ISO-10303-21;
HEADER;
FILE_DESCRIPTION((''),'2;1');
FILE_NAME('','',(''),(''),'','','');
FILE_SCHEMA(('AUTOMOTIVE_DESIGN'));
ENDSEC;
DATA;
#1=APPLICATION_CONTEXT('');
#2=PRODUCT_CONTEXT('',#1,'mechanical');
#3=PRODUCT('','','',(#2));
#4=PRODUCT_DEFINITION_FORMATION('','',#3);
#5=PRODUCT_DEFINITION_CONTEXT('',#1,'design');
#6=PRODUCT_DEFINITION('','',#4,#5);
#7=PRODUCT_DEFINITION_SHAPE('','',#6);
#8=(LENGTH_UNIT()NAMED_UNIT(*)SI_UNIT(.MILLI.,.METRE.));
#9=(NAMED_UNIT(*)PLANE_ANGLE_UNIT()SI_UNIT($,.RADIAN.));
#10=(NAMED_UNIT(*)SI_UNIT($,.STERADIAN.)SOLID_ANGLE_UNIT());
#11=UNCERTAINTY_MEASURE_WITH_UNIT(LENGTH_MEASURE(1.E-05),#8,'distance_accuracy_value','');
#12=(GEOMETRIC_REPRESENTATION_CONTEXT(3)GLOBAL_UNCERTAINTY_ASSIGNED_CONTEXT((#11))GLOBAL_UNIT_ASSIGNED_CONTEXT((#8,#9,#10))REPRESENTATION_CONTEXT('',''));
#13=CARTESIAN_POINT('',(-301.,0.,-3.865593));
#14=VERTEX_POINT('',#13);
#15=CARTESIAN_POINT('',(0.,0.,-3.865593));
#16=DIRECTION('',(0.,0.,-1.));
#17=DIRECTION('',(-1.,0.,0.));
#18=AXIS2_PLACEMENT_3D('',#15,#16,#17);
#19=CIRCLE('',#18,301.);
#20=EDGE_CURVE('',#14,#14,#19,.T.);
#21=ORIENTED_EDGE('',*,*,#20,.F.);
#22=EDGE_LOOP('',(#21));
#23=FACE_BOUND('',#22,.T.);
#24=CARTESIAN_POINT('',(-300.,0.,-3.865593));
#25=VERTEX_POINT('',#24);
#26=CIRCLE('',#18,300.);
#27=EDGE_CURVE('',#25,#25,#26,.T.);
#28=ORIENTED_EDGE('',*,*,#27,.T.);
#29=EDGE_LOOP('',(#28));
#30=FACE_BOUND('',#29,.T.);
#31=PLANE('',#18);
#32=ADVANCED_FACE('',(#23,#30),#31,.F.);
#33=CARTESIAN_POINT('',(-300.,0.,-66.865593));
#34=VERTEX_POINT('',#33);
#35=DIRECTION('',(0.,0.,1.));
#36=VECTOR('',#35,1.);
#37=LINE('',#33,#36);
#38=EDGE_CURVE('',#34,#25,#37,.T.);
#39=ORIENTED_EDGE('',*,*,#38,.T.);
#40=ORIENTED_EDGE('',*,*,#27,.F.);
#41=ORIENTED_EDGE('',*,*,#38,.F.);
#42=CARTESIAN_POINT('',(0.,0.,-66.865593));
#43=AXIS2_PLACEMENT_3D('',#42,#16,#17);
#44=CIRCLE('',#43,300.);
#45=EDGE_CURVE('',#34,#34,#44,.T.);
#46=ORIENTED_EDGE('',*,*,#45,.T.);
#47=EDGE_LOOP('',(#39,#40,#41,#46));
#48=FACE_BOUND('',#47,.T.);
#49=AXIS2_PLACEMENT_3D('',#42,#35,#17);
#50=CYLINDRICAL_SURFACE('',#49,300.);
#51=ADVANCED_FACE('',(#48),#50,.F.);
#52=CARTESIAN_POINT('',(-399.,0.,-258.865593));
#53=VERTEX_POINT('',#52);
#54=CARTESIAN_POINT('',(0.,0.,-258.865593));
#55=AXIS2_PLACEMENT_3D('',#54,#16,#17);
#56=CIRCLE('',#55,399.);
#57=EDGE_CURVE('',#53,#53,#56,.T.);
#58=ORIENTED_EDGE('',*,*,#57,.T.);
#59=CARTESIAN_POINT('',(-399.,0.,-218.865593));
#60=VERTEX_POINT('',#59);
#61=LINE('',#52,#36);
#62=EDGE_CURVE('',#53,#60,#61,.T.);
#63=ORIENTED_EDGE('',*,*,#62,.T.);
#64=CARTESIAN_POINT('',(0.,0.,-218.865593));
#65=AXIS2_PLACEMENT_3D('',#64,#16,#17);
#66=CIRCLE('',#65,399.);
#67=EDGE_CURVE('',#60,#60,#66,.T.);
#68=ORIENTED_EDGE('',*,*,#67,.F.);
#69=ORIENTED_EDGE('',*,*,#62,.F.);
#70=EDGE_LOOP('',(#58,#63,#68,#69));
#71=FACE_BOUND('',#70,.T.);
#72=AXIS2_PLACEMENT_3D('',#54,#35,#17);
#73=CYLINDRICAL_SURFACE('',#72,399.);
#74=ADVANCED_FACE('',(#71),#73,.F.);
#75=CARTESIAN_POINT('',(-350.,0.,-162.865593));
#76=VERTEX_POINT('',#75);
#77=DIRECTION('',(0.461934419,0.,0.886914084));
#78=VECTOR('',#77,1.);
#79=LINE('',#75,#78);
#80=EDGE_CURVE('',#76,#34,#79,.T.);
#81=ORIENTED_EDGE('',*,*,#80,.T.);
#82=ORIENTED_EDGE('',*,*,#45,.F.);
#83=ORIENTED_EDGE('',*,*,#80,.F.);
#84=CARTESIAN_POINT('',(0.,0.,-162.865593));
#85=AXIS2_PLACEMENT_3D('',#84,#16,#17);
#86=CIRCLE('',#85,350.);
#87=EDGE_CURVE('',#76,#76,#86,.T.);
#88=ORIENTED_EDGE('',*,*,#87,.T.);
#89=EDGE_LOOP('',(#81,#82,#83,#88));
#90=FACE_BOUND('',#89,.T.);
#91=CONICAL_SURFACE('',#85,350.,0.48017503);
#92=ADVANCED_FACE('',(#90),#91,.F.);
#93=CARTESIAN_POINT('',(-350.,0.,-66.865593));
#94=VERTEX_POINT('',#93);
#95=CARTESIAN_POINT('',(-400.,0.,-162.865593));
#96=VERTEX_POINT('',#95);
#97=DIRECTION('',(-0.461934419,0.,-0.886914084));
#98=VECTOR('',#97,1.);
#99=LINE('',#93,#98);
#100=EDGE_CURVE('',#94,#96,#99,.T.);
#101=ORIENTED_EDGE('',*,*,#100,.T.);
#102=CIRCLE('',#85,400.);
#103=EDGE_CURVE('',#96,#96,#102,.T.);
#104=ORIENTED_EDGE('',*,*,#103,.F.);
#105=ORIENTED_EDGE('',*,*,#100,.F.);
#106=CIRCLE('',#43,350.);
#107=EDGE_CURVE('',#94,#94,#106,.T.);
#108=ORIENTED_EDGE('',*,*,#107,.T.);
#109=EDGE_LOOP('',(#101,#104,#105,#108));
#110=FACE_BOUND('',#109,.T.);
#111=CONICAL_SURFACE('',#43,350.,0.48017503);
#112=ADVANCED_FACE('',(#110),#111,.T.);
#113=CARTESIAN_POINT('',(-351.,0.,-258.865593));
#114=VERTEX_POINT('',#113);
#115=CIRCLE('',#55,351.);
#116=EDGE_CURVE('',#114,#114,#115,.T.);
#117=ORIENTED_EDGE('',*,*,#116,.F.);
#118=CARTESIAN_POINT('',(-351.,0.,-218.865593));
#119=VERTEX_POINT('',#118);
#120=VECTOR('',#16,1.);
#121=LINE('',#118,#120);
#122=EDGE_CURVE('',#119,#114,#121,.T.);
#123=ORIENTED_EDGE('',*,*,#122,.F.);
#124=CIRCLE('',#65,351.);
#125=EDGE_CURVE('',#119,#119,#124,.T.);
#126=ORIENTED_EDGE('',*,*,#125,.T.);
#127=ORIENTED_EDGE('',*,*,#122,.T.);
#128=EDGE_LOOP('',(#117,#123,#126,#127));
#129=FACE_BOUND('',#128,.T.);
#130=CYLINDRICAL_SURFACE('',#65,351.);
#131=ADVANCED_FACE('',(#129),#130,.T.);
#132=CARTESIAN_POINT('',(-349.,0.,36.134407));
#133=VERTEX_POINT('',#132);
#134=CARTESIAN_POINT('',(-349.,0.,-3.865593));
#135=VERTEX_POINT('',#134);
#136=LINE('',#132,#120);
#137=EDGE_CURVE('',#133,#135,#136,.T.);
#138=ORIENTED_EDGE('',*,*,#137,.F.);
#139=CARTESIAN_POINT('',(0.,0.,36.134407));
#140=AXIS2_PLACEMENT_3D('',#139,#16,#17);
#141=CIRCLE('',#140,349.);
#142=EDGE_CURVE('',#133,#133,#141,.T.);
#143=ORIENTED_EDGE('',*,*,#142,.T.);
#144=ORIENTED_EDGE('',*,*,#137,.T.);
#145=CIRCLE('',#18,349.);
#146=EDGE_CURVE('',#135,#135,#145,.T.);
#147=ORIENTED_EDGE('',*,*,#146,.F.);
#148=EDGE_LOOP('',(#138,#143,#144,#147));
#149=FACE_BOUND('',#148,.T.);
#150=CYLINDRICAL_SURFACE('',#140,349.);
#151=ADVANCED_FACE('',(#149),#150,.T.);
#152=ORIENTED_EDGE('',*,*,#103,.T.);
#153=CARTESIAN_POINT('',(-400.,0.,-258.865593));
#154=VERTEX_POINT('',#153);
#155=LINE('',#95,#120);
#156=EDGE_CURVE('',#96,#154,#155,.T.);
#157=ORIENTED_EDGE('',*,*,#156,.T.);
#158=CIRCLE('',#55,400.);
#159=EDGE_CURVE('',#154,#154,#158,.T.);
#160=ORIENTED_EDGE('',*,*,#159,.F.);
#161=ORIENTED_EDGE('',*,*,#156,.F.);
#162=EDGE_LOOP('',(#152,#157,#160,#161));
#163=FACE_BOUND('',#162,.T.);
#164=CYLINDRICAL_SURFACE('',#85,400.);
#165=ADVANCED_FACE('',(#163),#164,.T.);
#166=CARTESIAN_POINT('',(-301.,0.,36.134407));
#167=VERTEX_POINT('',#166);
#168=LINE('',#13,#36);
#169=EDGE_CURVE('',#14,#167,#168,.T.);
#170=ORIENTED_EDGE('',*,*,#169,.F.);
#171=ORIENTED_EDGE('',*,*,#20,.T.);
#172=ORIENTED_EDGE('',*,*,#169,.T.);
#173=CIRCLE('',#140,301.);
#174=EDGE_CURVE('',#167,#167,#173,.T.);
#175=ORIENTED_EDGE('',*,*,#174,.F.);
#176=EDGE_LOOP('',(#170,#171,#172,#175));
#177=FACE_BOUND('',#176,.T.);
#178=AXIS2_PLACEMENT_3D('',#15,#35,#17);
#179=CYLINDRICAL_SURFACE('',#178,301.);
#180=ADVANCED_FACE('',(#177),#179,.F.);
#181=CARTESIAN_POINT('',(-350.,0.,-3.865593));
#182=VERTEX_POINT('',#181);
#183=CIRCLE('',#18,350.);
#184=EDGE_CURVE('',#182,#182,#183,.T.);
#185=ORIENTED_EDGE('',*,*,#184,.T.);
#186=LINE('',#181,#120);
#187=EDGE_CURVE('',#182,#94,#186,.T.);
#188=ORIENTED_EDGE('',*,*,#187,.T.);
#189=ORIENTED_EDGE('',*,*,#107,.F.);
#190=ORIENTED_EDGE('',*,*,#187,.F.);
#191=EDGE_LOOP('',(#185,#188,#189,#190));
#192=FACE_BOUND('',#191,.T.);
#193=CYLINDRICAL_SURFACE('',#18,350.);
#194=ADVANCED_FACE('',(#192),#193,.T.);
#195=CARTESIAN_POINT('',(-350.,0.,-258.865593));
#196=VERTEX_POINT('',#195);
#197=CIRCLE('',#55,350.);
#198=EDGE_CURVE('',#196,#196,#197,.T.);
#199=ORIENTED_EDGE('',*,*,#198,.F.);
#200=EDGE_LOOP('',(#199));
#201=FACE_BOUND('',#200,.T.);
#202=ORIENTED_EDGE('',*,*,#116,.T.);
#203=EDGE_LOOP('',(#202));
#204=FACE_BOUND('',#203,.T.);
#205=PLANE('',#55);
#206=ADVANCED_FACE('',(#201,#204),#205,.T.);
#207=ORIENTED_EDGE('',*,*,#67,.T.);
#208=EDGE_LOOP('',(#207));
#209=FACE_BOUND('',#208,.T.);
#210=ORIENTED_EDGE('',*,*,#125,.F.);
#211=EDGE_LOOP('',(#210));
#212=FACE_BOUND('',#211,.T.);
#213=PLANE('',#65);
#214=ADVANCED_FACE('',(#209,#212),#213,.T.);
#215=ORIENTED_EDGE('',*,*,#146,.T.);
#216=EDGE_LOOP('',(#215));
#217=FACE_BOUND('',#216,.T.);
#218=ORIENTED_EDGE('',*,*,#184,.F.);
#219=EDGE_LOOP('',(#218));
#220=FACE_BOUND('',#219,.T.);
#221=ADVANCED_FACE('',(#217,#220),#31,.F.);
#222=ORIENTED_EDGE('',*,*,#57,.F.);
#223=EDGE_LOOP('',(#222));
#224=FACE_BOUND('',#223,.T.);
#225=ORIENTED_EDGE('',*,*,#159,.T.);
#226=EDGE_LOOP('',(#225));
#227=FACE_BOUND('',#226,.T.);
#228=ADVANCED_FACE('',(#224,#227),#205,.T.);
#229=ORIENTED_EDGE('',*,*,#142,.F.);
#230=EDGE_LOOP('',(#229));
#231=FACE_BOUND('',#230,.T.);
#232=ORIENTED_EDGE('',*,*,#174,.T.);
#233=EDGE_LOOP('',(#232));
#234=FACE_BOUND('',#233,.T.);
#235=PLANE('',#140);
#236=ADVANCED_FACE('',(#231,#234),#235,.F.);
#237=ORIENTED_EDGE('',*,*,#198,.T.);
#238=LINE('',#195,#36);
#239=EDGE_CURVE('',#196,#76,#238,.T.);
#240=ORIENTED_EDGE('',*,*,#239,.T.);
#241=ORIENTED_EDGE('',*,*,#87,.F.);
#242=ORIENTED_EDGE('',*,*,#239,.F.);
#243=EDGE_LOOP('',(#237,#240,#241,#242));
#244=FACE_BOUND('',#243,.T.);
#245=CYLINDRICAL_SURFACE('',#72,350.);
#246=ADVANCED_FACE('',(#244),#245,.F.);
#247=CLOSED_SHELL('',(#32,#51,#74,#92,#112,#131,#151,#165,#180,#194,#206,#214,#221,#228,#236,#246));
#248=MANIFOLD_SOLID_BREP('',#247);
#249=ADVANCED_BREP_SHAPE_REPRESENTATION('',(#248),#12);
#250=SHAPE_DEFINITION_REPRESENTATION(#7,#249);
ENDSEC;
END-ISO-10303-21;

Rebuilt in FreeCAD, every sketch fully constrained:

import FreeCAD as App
import Part
import Sketcher

V = App.Vector

doc = App.newDocument("Part")
body = doc.addObject("PartDesign::Body", "Body")

# Sketch on XZ plane
sketch1 = body.newObject("Sketcher::SketchObject", "Sketch")
sketch1.AttachmentSupport = (doc.getObject("XZ_Plane"), [""])
sketch1.MapMode = "FlatFace"
sketch1.addGeometry(Part.LineSegment(V(-351, -258.9, 0), V(-350, -258.9, 0)), False)
sketch1.addGeometry(Part.LineSegment(V(-350, -258.9, 0), V(-350, -162.9, 0)), False)
sketch1.addGeometry(Part.LineSegment(V(-350, -162.9, 0), V(-300, -66.9, 0)), False)
sketch1.addGeometry(Part.LineSegment(V(-300, -66.9, 0), V(-300, -3.9, 0)), False)
sketch1.addGeometry(Part.LineSegment(V(-300, -3.9, 0), V(-301, -3.9, 0)), False)
sketch1.addGeometry(Part.LineSegment(V(-301, -3.9, 0), V(-301, 36.1, 0)), False)
sketch1.addGeometry(Part.LineSegment(V(-301, 36.1, 0), V(-349, 36.1, 0)), False)
sketch1.addGeometry(Part.LineSegment(V(-349, 36.1, 0), V(-349, -3.9, 0)), False)
sketch1.addGeometry(Part.LineSegment(V(-349, -3.9, 0), V(-350, -3.9, 0)), False)
sketch1.addGeometry(Part.LineSegment(V(-350, -3.9, 0), V(-350, -66.9, 0)), False)
sketch1.addGeometry(Part.LineSegment(V(-350, -66.9, 0), V(-400, -162.9, 0)), False)
sketch1.addGeometry(Part.LineSegment(V(-400, -162.9, 0), V(-400, -258.9, 0)), False)
sketch1.addGeometry(Part.LineSegment(V(-400, -258.9, 0), V(-399, -258.9, 0)), False)
sketch1.addGeometry(Part.LineSegment(V(-399, -258.9, 0), V(-399, -218.9, 0)), False)
sketch1.addGeometry(Part.LineSegment(V(-399, -218.9, 0), V(-351, -218.9, 0)), False)
sketch1.addGeometry(Part.LineSegment(V(-351, -218.9, 0), V(-351, -258.9, 0)), False)
sketch1.addConstraint(Sketcher.Constraint("Coincident", 0, 2, 1, 1))
sketch1.addConstraint(Sketcher.Constraint("Coincident", 1, 2, 2, 1))
sketch1.addConstraint(Sketcher.Constraint("Coincident", 2, 2, 3, 1))
sketch1.addConstraint(Sketcher.Constraint("Coincident", 3, 2, 4, 1))
sketch1.addConstraint(Sketcher.Constraint("Coincident", 4, 2, 5, 1))
sketch1.addConstraint(Sketcher.Constraint("Coincident", 5, 2, 6, 1))
sketch1.addConstraint(Sketcher.Constraint("Coincident", 6, 2, 7, 1))
sketch1.addConstraint(Sketcher.Constraint("Coincident", 7, 2, 8, 1))
sketch1.addConstraint(Sketcher.Constraint("Coincident", 8, 2, 9, 1))
sketch1.addConstraint(Sketcher.Constraint("Coincident", 9, 2, 10, 1))
sketch1.addConstraint(Sketcher.Constraint("Coincident", 10, 2, 11, 1))
sketch1.addConstraint(Sketcher.Constraint("Coincident", 11, 2, 12, 1))
sketch1.addConstraint(Sketcher.Constraint("Coincident", 12, 2, 13, 1))
sketch1.addConstraint(Sketcher.Constraint("Coincident", 13, 2, 14, 1))
sketch1.addConstraint(Sketcher.Constraint("Coincident", 14, 2, 15, 1))
sketch1.addConstraint(Sketcher.Constraint("Coincident", 15, 2, 0, 1))
sketch1.addConstraint(Sketcher.Constraint("Horizontal", 0))
sketch1.addConstraint(Sketcher.Constraint("Vertical", 1))
sketch1.addConstraint(Sketcher.Constraint("Vertical", 3))
sketch1.addConstraint(Sketcher.Constraint("Horizontal", 4))
sketch1.addConstraint(Sketcher.Constraint("Vertical", 5))
sketch1.addConstraint(Sketcher.Constraint("Horizontal", 6))
sketch1.addConstraint(Sketcher.Constraint("Vertical", 7))
sketch1.addConstraint(Sketcher.Constraint("Horizontal", 8))
sketch1.addConstraint(Sketcher.Constraint("Vertical", 9))
sketch1.addConstraint(Sketcher.Constraint("Vertical", 11))
sketch1.addConstraint(Sketcher.Constraint("Horizontal", 12))
sketch1.addConstraint(Sketcher.Constraint("Vertical", 13))
sketch1.addConstraint(Sketcher.Constraint("Horizontal", 14))
sketch1.addConstraint(Sketcher.Constraint("Vertical", 15))
sketch1.addConstraint(Sketcher.Constraint("Parallel", 2, 10))
sketch1.addConstraint(Sketcher.Constraint("Horizontal", 4, 2, 7, 2))
sketch1.addConstraint(Sketcher.Constraint("Horizontal", 2, 2, 9, 2))
sketch1.addConstraint(Sketcher.Constraint("Horizontal", 1, 2, 10, 2))
sketch1.addConstraint(Sketcher.Constraint("Horizontal", 0, 2, 11, 2))
sketch1.addConstraint(Sketcher.Constraint("Vertical", 1, 2, 8, 2))
sketch1.addConstraint(Sketcher.Constraint("Equal", 0, 4))
sketch1.addConstraint(Sketcher.Constraint("Equal", 4, 8))
sketch1.addConstraint(Sketcher.Constraint("Equal", 8, 12))
sketch1.addConstraint(Sketcher.Constraint("Equal", 7, 13))
sketch1.addConstraint(Sketcher.Constraint("DistanceX", 0, 1, 0, 2, 1.0))
sketch1.addConstraint(Sketcher.Constraint("DistanceX", 6, 2, 6, 1, 48.0))
sketch1.addConstraint(Sketcher.Constraint("DistanceY", 1, 1, 1, 2, 96.0))
sketch1.addConstraint(Sketcher.Constraint("DistanceY", 3, 1, 3, 2, 63.0))
sketch1.addConstraint(Sketcher.Constraint("DistanceY", 5, 1, 5, 2, 40.0))
sketch1.addConstraint(Sketcher.Constraint("DistanceX", 0, 2, -1, 1, 350.0))
sketch1.addConstraint(Sketcher.Constraint("DistanceY", 1, 2, 2, 2, 96.0))
sketch1.addConstraint(Sketcher.Constraint("DistanceY", 0, 2, -1, 1, 258.865593))
revolution = body.newObject("PartDesign::Revolution", "Revolution")
revolution.Profile = sketch1
revolution.ReferenceAxis = (sketch1, ["V_Axis"])
revolution.Angle = 360

doc.recompute()
